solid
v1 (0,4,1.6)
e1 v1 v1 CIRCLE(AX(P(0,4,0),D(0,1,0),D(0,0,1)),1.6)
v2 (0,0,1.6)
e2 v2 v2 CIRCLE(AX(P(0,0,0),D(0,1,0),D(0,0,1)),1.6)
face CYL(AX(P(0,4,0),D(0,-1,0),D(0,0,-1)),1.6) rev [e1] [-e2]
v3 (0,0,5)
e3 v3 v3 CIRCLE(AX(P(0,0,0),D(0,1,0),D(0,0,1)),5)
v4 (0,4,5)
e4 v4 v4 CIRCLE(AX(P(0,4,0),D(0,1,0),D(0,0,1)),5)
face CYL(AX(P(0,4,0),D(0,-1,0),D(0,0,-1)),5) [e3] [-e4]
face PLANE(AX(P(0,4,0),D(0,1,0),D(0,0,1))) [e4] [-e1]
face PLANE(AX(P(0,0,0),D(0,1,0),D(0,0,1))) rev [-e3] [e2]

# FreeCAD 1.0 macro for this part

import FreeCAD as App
import Part
import Sketcher

doc = App.newDocument("Part")
body = doc.addObject("PartDesign::Body", "Body")

# Sketch on XZ plane
sketch1 = doc.addObject("Sketcher::SketchObject", "Sketch")
body.addObject(sketch1)
sketch1.AttachmentSupport = (doc.XZ_Plane, [""])
sketch1.MapMode = "FlatFace"
sketch1.addGeometry([
    Part.Circle(App.Vector(0, 0, 0), App.Vector(0, 0, 1), 5),
    Part.Circle(App.Vector(0, 0, 0), App.Vector(0, 0, 1), 1.6),
], False)
sketch1.addConstraint([
    Sketcher.Constraint("Coincident", 0, 3, -1, 1),
    Sketcher.Constraint("Coincident", 1, 3, -1, 1),
    Sketcher.Constraint("Diameter", 0, 10.0),
    Sketcher.Constraint("Diameter", 1, 3.2),
])
pad1 = doc.addObject("PartDesign::Pad", "Pad")
body.addObject(pad1)
pad1.Profile = sketch1
pad1.Length = 4
pad1.Reversed = True

doc.recompute()
